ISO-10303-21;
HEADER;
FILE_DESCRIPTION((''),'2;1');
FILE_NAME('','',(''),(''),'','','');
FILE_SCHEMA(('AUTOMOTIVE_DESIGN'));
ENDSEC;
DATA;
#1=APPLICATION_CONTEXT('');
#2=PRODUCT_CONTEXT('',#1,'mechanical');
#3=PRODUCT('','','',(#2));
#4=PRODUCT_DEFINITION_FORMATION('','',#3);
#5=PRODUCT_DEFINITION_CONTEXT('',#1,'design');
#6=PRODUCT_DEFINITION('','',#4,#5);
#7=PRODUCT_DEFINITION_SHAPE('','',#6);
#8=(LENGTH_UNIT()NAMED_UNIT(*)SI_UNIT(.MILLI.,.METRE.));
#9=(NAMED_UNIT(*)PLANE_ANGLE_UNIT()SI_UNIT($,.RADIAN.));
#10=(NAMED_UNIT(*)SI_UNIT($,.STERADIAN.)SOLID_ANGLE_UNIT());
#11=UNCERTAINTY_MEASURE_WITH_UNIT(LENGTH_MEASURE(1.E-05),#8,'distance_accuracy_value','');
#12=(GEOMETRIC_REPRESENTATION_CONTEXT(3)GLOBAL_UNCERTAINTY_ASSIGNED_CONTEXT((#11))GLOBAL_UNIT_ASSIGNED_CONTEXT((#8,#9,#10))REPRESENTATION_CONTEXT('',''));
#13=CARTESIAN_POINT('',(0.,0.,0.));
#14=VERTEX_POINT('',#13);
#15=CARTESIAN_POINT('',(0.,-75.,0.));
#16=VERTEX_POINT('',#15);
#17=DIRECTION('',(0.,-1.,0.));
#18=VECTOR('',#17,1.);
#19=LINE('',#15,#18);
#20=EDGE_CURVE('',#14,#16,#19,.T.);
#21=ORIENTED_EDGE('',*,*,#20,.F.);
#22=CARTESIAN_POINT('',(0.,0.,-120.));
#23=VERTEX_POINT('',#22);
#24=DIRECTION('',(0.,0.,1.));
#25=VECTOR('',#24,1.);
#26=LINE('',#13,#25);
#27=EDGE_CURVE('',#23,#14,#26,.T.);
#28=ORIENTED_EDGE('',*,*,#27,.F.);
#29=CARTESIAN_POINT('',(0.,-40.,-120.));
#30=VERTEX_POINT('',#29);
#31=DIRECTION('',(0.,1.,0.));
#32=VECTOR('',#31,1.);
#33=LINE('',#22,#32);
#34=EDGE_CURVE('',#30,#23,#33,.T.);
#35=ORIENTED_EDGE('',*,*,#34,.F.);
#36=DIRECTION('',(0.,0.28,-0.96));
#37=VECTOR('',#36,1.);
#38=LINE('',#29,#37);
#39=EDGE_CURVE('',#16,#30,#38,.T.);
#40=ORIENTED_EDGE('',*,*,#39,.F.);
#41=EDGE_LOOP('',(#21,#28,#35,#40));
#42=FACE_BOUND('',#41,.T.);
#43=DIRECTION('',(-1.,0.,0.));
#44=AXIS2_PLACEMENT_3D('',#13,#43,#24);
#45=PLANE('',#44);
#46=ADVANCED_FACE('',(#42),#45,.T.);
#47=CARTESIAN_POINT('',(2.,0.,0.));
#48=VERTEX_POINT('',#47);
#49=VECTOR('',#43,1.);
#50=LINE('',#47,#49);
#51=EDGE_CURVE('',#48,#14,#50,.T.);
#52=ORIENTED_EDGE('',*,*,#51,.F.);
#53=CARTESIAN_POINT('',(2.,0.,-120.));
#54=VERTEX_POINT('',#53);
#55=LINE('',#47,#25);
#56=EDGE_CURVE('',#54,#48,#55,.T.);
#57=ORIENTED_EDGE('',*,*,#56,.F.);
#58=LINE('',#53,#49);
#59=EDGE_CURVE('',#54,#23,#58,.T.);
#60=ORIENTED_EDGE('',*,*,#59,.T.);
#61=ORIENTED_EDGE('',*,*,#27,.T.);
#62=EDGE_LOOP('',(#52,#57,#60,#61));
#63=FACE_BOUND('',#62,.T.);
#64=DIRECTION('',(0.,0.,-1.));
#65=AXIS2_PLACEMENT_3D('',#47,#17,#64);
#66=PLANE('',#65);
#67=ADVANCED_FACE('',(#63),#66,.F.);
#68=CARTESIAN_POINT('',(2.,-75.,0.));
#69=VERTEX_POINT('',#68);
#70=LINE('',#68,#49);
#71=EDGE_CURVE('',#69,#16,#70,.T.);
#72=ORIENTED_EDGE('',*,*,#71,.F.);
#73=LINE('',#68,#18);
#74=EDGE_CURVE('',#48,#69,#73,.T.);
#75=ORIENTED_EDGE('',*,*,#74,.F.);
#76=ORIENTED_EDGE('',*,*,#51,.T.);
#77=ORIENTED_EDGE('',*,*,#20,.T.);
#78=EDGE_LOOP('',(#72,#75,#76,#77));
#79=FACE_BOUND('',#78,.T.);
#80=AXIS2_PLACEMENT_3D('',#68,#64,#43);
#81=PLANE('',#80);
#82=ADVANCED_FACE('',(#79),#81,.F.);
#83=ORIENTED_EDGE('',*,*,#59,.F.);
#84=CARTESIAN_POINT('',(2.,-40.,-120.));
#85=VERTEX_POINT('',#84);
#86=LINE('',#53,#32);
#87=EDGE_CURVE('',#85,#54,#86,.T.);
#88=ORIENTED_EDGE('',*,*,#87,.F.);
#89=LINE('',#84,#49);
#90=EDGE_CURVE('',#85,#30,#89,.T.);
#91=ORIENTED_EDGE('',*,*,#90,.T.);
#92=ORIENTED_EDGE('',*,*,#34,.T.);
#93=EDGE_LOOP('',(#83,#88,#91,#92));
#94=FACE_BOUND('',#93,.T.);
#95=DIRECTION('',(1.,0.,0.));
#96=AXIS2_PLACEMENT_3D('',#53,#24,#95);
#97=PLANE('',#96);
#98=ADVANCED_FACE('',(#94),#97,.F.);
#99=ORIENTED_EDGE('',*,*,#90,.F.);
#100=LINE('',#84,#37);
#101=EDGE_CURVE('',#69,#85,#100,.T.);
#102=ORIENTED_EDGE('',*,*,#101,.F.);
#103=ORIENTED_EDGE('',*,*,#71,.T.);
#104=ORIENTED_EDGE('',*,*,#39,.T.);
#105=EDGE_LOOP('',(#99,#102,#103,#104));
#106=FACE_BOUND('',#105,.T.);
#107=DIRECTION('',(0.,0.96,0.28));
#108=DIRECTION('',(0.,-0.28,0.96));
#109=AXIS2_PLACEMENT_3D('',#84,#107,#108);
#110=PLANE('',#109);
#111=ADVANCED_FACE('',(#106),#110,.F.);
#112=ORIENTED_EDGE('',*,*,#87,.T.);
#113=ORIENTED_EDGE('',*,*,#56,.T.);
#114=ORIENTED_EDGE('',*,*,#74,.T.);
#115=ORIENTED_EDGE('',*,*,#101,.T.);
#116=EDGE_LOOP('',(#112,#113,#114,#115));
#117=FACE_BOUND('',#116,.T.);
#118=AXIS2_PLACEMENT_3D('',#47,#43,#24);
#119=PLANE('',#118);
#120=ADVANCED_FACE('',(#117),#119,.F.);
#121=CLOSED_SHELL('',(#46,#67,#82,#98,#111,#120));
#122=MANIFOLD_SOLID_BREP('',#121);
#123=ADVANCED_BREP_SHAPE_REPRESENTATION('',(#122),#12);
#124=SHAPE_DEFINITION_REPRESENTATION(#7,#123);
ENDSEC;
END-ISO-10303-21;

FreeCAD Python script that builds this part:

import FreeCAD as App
import Part
import Sketcher
Q = App.Units.Quantity


def add_polygon(sketch, points):
    """Adds a closed chain of lines whose ends are joined by coincident constraints."""
    first, n = sketch.GeometryCount, len(points)
    for a, b in zip(points, points[1:] + points[:1]):
        sketch.addGeometry(Part.LineSegment(App.Vector(*a, 0), App.Vector(*b, 0)), False)
    for i in range(n):
        sketch.addConstraint(Sketcher.Constraint("Coincident", first + i, 2, first + (i + 1) % n, 1))

doc = App.newDocument("Part")
body = doc.addObject("PartDesign::Body", "Body")

sketch1 = body.newObject("Sketcher::SketchObject", "Sketch")
sketch1.AttachmentSupport = (doc.getObject("YZ_Plane"), [""])
sketch1.MapMode = "FlatFace"
add_polygon(sketch1, [(0, 0), (-75, 0), (-40, -120), (0, -120)])
sketch1.addConstraint([
    Sketcher.Constraint("Horizontal", 0),
    Sketcher.Constraint("Horizontal", 2),
    Sketcher.Constraint("Vertical", 3),
    Sketcher.Constraint("Coincident", 3, 2, -1, 1),
    Sketcher.Constraint("DistanceX", 0, 2, 0, 1, Q("75 mm")),
    Sketcher.Constraint("DistanceX", 2, 1, 2, 2, Q("40 mm")),
    Sketcher.Constraint("DistanceY", 3, 1, 3, 2, Q("120 mm")),
])
pad1 = body.newObject("PartDesign::Pad", "Pad")
pad1.Profile = sketch1
pad1.Length = 2

doc.recompute()
